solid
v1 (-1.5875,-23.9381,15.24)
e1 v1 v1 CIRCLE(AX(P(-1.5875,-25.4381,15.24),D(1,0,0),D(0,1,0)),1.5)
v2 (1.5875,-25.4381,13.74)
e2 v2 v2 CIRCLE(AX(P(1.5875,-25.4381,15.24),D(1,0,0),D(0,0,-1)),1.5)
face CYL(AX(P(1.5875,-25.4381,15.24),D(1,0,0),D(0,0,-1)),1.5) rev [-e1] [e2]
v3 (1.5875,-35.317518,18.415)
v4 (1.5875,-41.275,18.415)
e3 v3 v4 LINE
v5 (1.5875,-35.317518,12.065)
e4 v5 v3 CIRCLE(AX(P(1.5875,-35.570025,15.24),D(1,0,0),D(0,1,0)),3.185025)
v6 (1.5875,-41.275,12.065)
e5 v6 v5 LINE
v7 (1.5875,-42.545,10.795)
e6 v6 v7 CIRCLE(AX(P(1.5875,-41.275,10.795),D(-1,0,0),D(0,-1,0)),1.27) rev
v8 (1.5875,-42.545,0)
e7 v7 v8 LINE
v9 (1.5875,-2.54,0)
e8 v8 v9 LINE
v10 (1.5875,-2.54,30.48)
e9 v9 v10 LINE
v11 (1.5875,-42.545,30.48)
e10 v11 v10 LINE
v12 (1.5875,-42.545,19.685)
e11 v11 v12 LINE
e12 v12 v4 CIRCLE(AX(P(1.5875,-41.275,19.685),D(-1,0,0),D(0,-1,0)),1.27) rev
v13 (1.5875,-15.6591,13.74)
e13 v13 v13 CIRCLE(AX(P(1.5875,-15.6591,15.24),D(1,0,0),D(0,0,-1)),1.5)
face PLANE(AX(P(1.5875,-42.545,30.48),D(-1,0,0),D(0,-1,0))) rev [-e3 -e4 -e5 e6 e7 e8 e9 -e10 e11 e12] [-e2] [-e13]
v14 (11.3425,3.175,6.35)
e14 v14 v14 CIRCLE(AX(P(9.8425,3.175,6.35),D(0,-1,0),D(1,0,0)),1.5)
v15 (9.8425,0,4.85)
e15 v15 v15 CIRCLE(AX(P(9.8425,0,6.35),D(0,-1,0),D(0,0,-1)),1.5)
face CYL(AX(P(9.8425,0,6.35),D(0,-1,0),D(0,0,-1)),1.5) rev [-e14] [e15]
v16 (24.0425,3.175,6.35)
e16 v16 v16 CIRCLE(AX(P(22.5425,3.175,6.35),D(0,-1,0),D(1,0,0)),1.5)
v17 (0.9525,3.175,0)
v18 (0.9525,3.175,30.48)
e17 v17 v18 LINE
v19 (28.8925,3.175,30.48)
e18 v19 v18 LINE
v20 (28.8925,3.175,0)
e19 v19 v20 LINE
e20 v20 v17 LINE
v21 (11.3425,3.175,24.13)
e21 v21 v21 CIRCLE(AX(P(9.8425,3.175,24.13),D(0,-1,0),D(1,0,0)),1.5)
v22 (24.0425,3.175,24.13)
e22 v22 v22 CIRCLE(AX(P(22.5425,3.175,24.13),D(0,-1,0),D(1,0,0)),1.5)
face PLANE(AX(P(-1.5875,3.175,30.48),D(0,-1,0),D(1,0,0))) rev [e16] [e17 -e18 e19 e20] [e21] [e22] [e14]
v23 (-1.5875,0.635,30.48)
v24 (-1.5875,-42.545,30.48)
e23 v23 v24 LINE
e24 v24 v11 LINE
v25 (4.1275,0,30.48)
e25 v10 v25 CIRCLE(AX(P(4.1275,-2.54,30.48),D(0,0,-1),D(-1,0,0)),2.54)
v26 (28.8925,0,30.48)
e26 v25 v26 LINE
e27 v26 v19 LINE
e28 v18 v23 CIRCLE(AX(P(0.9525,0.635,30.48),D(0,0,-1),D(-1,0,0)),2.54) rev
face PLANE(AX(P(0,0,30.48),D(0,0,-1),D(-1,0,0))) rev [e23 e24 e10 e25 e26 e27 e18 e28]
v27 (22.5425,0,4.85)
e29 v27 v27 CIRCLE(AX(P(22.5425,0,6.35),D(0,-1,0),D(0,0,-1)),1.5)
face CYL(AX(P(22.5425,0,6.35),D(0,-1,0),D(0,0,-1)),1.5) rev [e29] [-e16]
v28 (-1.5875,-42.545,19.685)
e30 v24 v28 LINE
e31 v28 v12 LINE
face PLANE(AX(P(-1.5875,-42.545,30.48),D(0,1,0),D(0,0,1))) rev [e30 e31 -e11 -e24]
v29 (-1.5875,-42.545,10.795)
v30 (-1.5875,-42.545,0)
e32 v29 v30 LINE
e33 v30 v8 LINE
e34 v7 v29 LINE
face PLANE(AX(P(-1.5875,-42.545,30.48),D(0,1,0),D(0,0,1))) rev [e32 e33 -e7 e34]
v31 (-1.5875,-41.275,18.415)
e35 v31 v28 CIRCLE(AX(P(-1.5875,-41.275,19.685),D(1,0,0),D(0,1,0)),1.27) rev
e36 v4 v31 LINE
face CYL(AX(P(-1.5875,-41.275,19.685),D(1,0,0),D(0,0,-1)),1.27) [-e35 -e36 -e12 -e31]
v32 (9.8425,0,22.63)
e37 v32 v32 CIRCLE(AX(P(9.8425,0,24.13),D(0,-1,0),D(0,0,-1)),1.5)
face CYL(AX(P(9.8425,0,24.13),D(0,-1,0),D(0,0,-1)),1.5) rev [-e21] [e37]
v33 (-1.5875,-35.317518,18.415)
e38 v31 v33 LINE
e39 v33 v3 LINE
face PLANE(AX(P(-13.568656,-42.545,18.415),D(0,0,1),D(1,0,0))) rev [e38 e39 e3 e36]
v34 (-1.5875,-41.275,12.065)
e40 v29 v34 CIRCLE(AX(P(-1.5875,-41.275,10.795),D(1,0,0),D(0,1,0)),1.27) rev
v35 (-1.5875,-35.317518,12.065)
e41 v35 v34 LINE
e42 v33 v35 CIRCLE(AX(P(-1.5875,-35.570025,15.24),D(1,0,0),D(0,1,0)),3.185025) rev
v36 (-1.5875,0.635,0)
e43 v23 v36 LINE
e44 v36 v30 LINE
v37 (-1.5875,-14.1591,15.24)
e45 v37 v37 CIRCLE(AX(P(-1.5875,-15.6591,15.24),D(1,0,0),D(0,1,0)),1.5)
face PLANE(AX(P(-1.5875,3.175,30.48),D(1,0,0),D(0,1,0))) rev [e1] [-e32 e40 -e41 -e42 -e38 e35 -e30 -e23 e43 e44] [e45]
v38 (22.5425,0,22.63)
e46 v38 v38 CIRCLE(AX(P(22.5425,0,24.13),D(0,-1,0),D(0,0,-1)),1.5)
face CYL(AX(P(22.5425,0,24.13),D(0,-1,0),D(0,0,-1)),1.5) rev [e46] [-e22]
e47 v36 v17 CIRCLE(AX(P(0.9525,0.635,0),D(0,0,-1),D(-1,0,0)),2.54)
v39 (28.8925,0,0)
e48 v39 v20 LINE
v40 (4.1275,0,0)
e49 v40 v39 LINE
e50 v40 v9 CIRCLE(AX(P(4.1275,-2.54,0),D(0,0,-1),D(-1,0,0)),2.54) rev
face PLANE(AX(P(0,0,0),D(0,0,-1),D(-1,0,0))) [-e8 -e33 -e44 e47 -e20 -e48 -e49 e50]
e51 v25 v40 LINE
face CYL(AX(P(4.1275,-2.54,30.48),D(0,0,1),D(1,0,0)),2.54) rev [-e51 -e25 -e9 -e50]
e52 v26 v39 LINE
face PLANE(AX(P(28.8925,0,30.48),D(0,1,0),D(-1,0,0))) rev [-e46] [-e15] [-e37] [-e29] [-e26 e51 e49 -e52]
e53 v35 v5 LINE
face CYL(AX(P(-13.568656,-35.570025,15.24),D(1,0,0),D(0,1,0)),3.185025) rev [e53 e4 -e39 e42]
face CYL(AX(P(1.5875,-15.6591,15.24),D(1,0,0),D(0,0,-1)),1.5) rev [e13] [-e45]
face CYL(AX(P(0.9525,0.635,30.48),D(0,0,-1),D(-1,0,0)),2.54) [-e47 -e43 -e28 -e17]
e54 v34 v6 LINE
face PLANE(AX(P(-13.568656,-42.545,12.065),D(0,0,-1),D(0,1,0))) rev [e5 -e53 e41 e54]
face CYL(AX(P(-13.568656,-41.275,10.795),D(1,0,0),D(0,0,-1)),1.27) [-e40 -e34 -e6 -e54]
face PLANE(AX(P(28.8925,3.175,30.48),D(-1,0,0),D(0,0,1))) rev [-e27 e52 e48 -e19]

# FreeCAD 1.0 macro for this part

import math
import FreeCAD as App
import Part
import Sketcher
from FreeCAD import Vector
Q = App.Units.Quantity


def edges_at(feature, points):
    """Names of the edges that pass closest to the given points."""
    edges = feature.Shape.Edges
    near = lambda p: min(range(len(edges)), key=lambda i: edges[i].distToShape(Part.Vertex(*p))[0])
    return sorted({f"Edge{near(p) + 1}" for p in points})


def add_polygon(sketch, points):
    """Adds a closed chain of lines whose ends are joined by coincident constraints."""
    first, n = sketch.GeometryCount, len(points)
    for a, b in zip(points, points[1:] + points[:1]):
        sketch.addGeometry(Part.LineSegment(App.Vector(*a, 0), App.Vector(*b, 0)), False)
    for i in range(n):
        sketch.addConstraint(Sketcher.Constraint("Coincident", first + i, 2, first + (i + 1) % n, 1))

doc = App.newDocument("Part")
body = doc.addObject("PartDesign::Body", "Body")

sketch1 = body.newObject("Sketcher::SketchObject", "Sketch")
sketch1.AttachmentSupport = (doc.getObject("XY_Plane"), [""])
sketch1.MapMode = "FlatFace"
add_polygon(sketch1, [(-1.5875, 3.175), (-1.5875, -42.545), (1.5875, -42.545), (1.5875, 0), (28.8925, 0), (28.8925, 3.175)])
sketch1.addConstraint([
    Sketcher.Constraint("Vertical", 0),
    Sketcher.Constraint("Horizontal", 1),
    Sketcher.Constraint("Vertical", 2),
    Sketcher.Constraint("Horizontal", 3),
    Sketcher.Constraint("Vertical", 4),
    Sketcher.Constraint("Horizontal", 5),
    Sketcher.Constraint("PointOnObject", 2, 2, -1),
    Sketcher.Constraint("Equal", 1, 4),
    Sketcher.Constraint("DistanceX", 5, 2, 5, 1, Q("1.2 in")),
    Sketcher.Constraint("DistanceY", 0, 2, 0, 1, Q("1.8 in")),
    Sketcher.Constraint("DistanceX", 1, 1, 1, 2, Q("0.125 in")),
    Sketcher.Constraint("DistanceX", 0, 2, -1, 1, Q("0.0625 in")),
])
pad1 = body.newObject("PartDesign::Pad", "Pad")
pad1.Profile = sketch1
pad1.Length = Q("1.2 in")
doc.recompute()

fillet = body.newObject("PartDesign::Fillet", "Fillet")
fillet.Base = (pad1, edges_at(pad1, [(1.587, 0, 15.24), (-1.587, 3.175, 15.24)]))
fillet.Radius = Q("0.1 in")

sketch2 = body.newObject("Sketcher::SketchObject", "Sketch001")
sketch2.AttachmentSupport = (doc.getObject("YZ_Plane"), [""])
sketch2.MapMode = "FlatFace"
sketch2.AttachmentOffset = App.Placement(Vector(0, 0, 0.0625 * 25.4), App.Rotation())
sketch2.addGeometry([
    Part.Circle(Vector(-15.6591, 15.24, 0), Vector(0, 0, 1), 1.5),
    Part.Circle(Vector(-25.4381, 15.24, 0), Vector(0, 0, 1), 1.5),
], False)
sketch2.addConstraint([
    Sketcher.Constraint("Equal", 0, 1),
    Sketcher.Constraint("Horizontal", 0, 3, 1, 3),
    Sketcher.Constraint("DistanceY", -1, 1, 0, 3, Q("0.6 in")),
    Sketcher.Constraint("Diameter", 0, 3.0),
    Sketcher.Constraint("DistanceX", 1, 3, 0, 3, Q("0.385 in")),
    Sketcher.Constraint("DistanceX", 0, 3, -1, 1, Q("0.6165 in")),
])
doc.recompute()
hole = body.newObject("PartDesign::Hole", "Hole")
hole.Profile = sketch2
hole.ThreadType = "None"
hole.Diameter = 3
hole.DepthType = "Dimension"
hole.Depth = Q("0.125 in")
hole.DrillPoint = "Flat"

sketch3 = body.newObject("Sketcher::SketchObject", "Sketch002")
sketch3.AttachmentSupport = (doc.getObject("XZ_Plane"), [""])
sketch3.MapMode = "FlatFace"
sketch3.addGeometry([
    Part.Circle(Vector(22.5425, 6.35, 0), Vector(0, 0, 1), 1.5),
    Part.Circle(Vector(9.8425, 6.35, 0), Vector(0, 0, 1), 1.5),
    Part.Circle(Vector(9.8425, 24.13, 0), Vector(0, 0, 1), 1.5),
    Part.Circle(Vector(22.5425, 24.13, 0), Vector(0, 0, 1), 1.5),
], False)
sketch3.addConstraint([
    Sketcher.Constraint("Equal", 0, 1),
    Sketcher.Constraint("Equal", 1, 2),
    Sketcher.Constraint("Equal", 2, 3),
    Sketcher.Constraint("Horizontal", 0, 3, 1, 3),
    Sketcher.Constraint("Horizontal", 2, 3, 3, 3),
    Sketcher.Constraint("Vertical", 1, 3, 2, 3),
    Sketcher.Constraint("Vertical", 0, 3, 3, 3),
    Sketcher.Constraint("DistanceX", 1, 3, 0, 3, Q("0.5 in")),
    Sketcher.Constraint("DistanceY", 1, 3, 2, 3, Q("0.7 in")),
    Sketcher.Constraint("Diameter", 0, 3.0),
    Sketcher.Constraint("DistanceY", -1, 1, 0, 3, Q("0.25 in")),
    Sketcher.Constraint("DistanceX", -1, 1, 0, 3, Q("0.8875 in")),
])
doc.recompute()
hole2 = body.newObject("PartDesign::Hole", "Hole001")
hole2.Profile = sketch3
hole2.ThreadType = "None"
hole2.Diameter = 3
hole2.DepthType = "Dimension"
hole2.Depth = Q("0.125 in")
hole2.DrillPoint = "Flat"

sketch4 = body.newObject("Sketcher::SketchObject", "Sketch003")
sketch4.AttachmentSupport = (doc.getObject("YZ_Plane"), [""])
sketch4.MapMode = "FlatFace"
sketch4.AttachmentOffset = App.Placement(Vector(0, 0, 0.0625 * 25.4), App.Rotation())
sketch4.addGeometry([
    Part.LineSegment(Vector(-35.317518, 18.415, 0), Vector(-42.545, 18.415, 0)),
    Part.LineSegment(Vector(-42.545, 18.415, 0), Vector(-42.545, 12.065, 0)),
    Part.LineSegment(Vector(-42.545, 12.065, 0), Vector(-35.317518, 12.065, 0)),
    Part.ArcOfCircle(Part.Circle(Vector(-35.570025, 15.24, 0), Vector(0, 0, 1), 3.185025), math.radians(-85.452852), math.radians(85.452852)),
], False)
sketch4.addConstraint([
    Sketcher.Constraint("Coincident", 0, 2, 1, 1),
    Sketcher.Constraint("Coincident", 1, 2, 2, 1),
    Sketcher.Constraint("Coincident", 2, 2, 3, 1),
    Sketcher.Constraint("Coincident", 3, 2, 0, 1),
    Sketcher.Constraint("Horizontal", 0),
    Sketcher.Constraint("Vertical", 1),
    Sketcher.Constraint("Horizontal", 2),
    Sketcher.Constraint("Vertical", 2, 2, 3, 2),
    Sketcher.Constraint("DistanceY", 1, 2, 1, 1, Q("0.25 in")),
    Sketcher.Constraint("DistanceY", -1, 1, 3, 3, Q("0.6 in")),
    Sketcher.Constraint("DistanceX", 0, 2, -1, 1, Q("1.675 in")),
    Sketcher.Constraint("Radius", 3, 3.185025),
    Sketcher.Constraint("DistanceX", 0, 2, 0, 1, 7.227482),
])
pocket1 = body.newObject("PartDesign::Pocket", "Pocket")
pocket1.Profile = sketch4
pocket1.Length = Q("0.125 in")
doc.recompute()

fillet2 = body.newObject("PartDesign::Fillet", "Fillet001")
fillet2.Base = (pocket1, edges_at(pocket1, [(0, -42.545, 12.065), (0, -42.545, 18.415)]))
fillet2.Radius = Q("0.05 in")

doc.recompute()
